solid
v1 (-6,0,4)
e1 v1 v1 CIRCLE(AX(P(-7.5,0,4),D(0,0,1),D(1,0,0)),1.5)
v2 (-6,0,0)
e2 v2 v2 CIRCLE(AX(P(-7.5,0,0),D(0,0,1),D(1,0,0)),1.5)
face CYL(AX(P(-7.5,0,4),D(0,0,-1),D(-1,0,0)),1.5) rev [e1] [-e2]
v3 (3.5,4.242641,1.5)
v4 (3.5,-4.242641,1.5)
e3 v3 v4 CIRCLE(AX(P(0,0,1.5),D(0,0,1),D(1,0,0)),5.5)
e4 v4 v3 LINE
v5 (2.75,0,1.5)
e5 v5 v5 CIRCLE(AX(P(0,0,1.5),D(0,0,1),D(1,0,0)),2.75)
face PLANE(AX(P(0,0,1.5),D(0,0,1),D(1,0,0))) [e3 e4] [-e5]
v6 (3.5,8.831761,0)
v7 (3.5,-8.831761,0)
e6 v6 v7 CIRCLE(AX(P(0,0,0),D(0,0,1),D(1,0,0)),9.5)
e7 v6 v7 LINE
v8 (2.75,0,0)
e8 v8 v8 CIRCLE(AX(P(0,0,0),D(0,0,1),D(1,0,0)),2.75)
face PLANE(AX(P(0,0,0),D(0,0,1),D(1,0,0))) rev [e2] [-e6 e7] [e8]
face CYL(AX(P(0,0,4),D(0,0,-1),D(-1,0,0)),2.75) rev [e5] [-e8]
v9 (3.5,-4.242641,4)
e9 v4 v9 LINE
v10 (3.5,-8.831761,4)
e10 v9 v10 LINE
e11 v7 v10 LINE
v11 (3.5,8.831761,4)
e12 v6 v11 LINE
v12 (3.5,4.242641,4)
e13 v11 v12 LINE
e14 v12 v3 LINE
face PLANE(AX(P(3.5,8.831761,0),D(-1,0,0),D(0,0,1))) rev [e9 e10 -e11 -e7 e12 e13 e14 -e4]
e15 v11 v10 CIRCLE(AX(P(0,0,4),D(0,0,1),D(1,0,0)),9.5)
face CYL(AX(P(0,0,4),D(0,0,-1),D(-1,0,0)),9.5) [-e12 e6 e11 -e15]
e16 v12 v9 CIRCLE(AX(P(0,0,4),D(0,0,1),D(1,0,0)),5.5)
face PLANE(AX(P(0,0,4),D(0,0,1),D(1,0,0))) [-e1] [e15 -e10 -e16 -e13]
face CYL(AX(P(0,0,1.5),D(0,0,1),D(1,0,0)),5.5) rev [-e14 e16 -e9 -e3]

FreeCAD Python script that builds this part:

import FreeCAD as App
import Part
import Sketcher

V = App.Vector

doc = App.newDocument("Part")
body = doc.addObject("PartDesign::Body", "Body")

# Sketch on XY plane
sketch1 = doc.addObject("Sketcher::SketchObject", "Sketch")
body.addObject(sketch1)
sketch1.AttachmentSupport = (doc.XY_Plane, [""])
sketch1.MapMode = "FlatFace"
sketch1.addGeometry(Part.Circle(V(0, 0, 0), V(0, 0, 1), 9.5), False)
sketch1.addGeometry(Part.Circle(V(-7.5, 0, 0), V(0, 0, 1), 1.5), False)
sketch1.addGeometry(Part.Circle(V(0, 0, 0), V(0, 0, 1), 2.8), False)
sketch1.addConstraint(Sketcher.Constraint("Coincident", 0, 3, -1, 1))
sketch1.addConstraint(Sketcher.Constraint("Coincident", 2, 3, -1, 1))
sketch1.addConstraint(Sketcher.Constraint("PointOnObject", 1, 3, -1))
sketch1.addConstraint(Sketcher.Constraint("Diameter", 0, 19.0))
sketch1.addConstraint(Sketcher.Constraint("Diameter", 1, 3.0))
sketch1.addConstraint(Sketcher.Constraint("Diameter", 2, 5.5))
sketch1.addConstraint(Sketcher.Constraint("DistanceX", 1, 3, -1, 1, 7.5))
pad1 = doc.addObject("PartDesign::Pad", "Pad")
body.addObject(pad1)
pad1.Profile = sketch1
pad1.Length = 4

# Sketch on XY plane
sketch2 = doc.addObject("Sketcher::SketchObject", "Sketch001")
body.addObject(sketch2)
sketch2.AttachmentSupport = (doc.XY_Plane, [""])
sketch2.MapMode = "FlatFace"
sketch2.AttachmentOffset = App.Placement(V(0, 0, 4), App.Rotation())
sketch2.addGeometry(Part.LineSegment(V(4, 9, 0), V(4, -9, 0)), False)
sketch2.addGeometry(Part.LineSegment(V(4, -9, 0), V(10, -9, 0)), False)
sketch2.addGeometry(Part.LineSegment(V(10, -9, 0), V(10, 9, 0)), False)
sketch2.addGeometry(Part.LineSegment(V(10, 9, 0), V(4, 9, 0)), False)
sketch2.addConstraint(Sketcher.Constraint("Coincident", 0, 2, 1, 1))
sketch2.addConstraint(Sketcher.Constraint("Coincident", 1, 2, 2, 1))
sketch2.addConstraint(Sketcher.Constraint("Coincident", 2, 2, 3, 1))
sketch2.addConstraint(Sketcher.Constraint("Coincident", 3, 2, 0, 1))
sketch2.addConstraint(Sketcher.Constraint("Vertical", 0))
sketch2.addConstraint(Sketcher.Constraint("Horizontal", 1))
sketch2.addConstraint(Sketcher.Constraint("Vertical", 2))
sketch2.addConstraint(Sketcher.Constraint("Horizontal", 3))
sketch2.addConstraint(Sketcher.Constraint("DistanceX", 1, 1, 1, 2, 6.0))
sketch2.addConstraint(Sketcher.Constraint("DistanceX", -1, 1, 0, 2, 3.5))
sketch2.addConstraint(Sketcher.Constraint("DistanceY", 0, 2, 0, 1, 17.663522))
sketch2.addConstraint(Sketcher.Constraint("DistanceY", 0, 2, -1, 1, 8.831761))
pocket1 = doc.addObject("PartDesign::Pocket", "Pocket")
body.addObject(pocket1)
pocket1.Profile = sketch2
pocket1.Type = "ThroughAll"

# Sketch on XY plane
sketch3 = doc.addObject("Sketcher::SketchObject", "Sketch002")
body.addObject(sketch3)
sketch3.AttachmentSupport = (doc.XY_Plane, [""])
sketch3.MapMode = "FlatFace"
sketch3.AttachmentOffset = App.Placement(V(0, 0, 4), App.Rotation())
sketch3.addGeometry(Part.Circle(V(0, 0, 0), V(0, 0, 1), 6), False)
sketch3.addConstraint(Sketcher.Constraint("Coincident", 0, 3, -1, 1))
sketch3.addConstraint(Sketcher.Constraint("Diameter", 0, 11.0))
pocket2 = doc.addObject("PartDesign::Pocket", "Pocket001")
body.addObject(pocket2)
pocket2.Profile = sketch3
pocket2.Length = 2.5

doc.recompute()
